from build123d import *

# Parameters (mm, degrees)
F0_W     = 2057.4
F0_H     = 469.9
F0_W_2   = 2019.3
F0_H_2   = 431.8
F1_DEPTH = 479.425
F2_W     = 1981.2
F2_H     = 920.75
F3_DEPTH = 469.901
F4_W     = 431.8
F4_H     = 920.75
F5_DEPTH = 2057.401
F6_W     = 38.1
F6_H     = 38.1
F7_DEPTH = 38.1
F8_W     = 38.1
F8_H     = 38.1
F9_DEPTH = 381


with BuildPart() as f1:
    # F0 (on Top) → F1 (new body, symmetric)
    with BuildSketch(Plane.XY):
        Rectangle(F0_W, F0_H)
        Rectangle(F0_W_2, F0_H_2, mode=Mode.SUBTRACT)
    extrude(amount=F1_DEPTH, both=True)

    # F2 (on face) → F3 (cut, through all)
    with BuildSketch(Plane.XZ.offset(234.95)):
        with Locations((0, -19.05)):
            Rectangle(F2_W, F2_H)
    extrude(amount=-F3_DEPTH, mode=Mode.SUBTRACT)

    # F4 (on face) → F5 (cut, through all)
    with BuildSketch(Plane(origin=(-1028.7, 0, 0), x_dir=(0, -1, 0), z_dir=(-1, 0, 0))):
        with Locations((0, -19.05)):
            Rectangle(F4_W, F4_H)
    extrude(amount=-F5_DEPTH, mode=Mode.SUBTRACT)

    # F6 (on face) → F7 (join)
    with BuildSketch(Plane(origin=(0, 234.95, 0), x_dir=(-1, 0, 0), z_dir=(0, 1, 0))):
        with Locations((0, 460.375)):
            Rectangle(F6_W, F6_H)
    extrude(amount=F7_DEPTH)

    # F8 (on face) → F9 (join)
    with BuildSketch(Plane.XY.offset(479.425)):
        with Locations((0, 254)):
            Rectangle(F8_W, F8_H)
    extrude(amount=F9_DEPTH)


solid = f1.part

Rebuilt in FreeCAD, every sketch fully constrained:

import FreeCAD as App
import Part
import Sketcher
from FreeCAD import Vector
Q = App.Units.Quantity


def add_polygon(sketch, points):
    """Adds a closed chain of lines whose ends are joined by coincident constraints."""
    first, n = sketch.GeometryCount, len(points)
    for a, b in zip(points, points[1:] + points[:1]):
        sketch.addGeometry(Part.LineSegment(App.Vector(*a, 0), App.Vector(*b, 0)), False)
    for i in range(n):
        sketch.addConstraint(Sketcher.Constraint("Coincident", first + i, 2, first + (i + 1) % n, 1))

doc = App.newDocument("Part")
body = doc.addObject("PartDesign::Body", "Body")

# Sketch on XY plane
sketch1 = doc.addObject("Sketcher::SketchObject", "Sketch")
body.addObject(sketch1)
sketch1.AttachmentSupport = (doc.XY_Plane, [""])
sketch1.MapMode = "FlatFace"
add_polygon(sketch1, [(-1028.7, 234.95), (-1028.7, -234.95), (1028.7, -234.95), (1028.7, 234.95)])  # lines 0-3
add_polygon(sketch1, [(1009.65, -215.9), (-1009.65, -215.9), (-1009.65, 215.9), (1009.65, 215.9)])  # lines 4-7
sketch1.addConstraint(Sketcher.Constraint("Vertical", 0))
sketch1.addConstraint(Sketcher.Constraint("Horizontal", 1))
sketch1.addConstraint(Sketcher.Constraint("Vertical", 2))
sketch1.addConstraint(Sketcher.Constraint("Horizontal", 3))
sketch1.addConstraint(Sketcher.Constraint("Horizontal", 4))
sketch1.addConstraint(Sketcher.Constraint("Vertical", 5))
sketch1.addConstraint(Sketcher.Constraint("Horizontal", 6))
sketch1.addConstraint(Sketcher.Constraint("Vertical", 7))
sketch1.addConstraint(Sketcher.Constraint("Symmetric", 0, 2, 2, 2, -1, 1))
sketch1.addConstraint(Sketcher.Constraint("Symmetric", 4, 2, 6, 2, -1, 1))
sketch1.addConstraint(Sketcher.Constraint("DistanceX", 1, 1, 1, 2, Q("81 in")))
sketch1.addConstraint(Sketcher.Constraint("DistanceY", 5, 1, 5, 2, Q("17 in")))
sketch1.addConstraint(Sketcher.Constraint("DistanceX", 4, 2, 4, 1, Q("79.5 in")))
sketch1.addConstraint(Sketcher.Constraint("DistanceY", 0, 2, 0, 1, Q("18.5 in")))
pad1 = doc.addObject("PartDesign::Pad", "Pad")
body.addObject(pad1)
pad1.Profile = sketch1
pad1.Length = Q("37.75 in")
pad1.Midplane = True

# Sketch on XZ plane
sketch2 = doc.addObject("Sketcher::SketchObject", "Sketch001")
body.addObject(sketch2)
sketch2.AttachmentSupport = (doc.XZ_Plane, [""])
sketch2.MapMode = "FlatFace"
sketch2.AttachmentOffset = App.Placement(Vector(0, 0, 9.25 * 25.4), App.Rotation())
add_polygon(sketch2, [(-990.6, 441.325), (-990.6, -479.425), (990.6, -479.425), (990.6, 441.325)])  # lines 0-3
sketch2.addConstraint(Sketcher.Constraint("Vertical", 0))
sketch2.addConstraint(Sketcher.Constraint("Horizontal", 1))
sketch2.addConstraint(Sketcher.Constraint("Vertical", 2))
sketch2.addConstraint(Sketcher.Constraint("Horizontal", 3))
sketch2.addConstraint(Sketcher.Constraint("DistanceX", 1, 1, 1, 2, Q("78 in")))
sketch2.addConstraint(Sketcher.Constraint("DistanceX", 0, 2, -1, 1, Q("39 in")))
sketch2.addConstraint(Sketcher.Constraint("DistanceY", 0, 2, 0, 1, Q("36.25 in")))
sketch2.addConstraint(Sketcher.Constraint("DistanceY", 0, 2, -1, 1, Q("18.875 in")))
pocket1 = doc.addObject("PartDesign::Pocket", "Pocket")
body.addObject(pocket1)
pocket1.Profile = sketch2
pocket1.Type = "ThroughAll"

# Sketch on YZ plane
sketch3 = doc.addObject("Sketcher::SketchObject", "Sketch002")
body.addObject(sketch3)
sketch3.AttachmentSupport = (doc.YZ_Plane, [""])
sketch3.MapMode = "FlatFace"
sketch3.AttachmentOffset = App.Placement(Vector(0, 0, -40.5 * 25.4), App.Rotation())
add_polygon(sketch3, [(215.9, 441.325), (215.9, -479.425), (-215.9, -479.425), (-215.9, 441.325)])  # lines 0-3
sketch3.addConstraint(Sketcher.Constraint("Vertical", 0))
sketch3.addConstraint(Sketcher.Constraint("Horizontal", 1))
sketch3.addConstraint(Sketcher.Constraint("Vertical", 2))
sketch3.addConstraint(Sketcher.Constraint("Horizontal", 3))
sketch3.addConstraint(Sketcher.Constraint("DistanceX", 1, 2, 1, 1, Q("17 in")))
sketch3.addConstraint(Sketcher.Constraint("DistanceY", 0, 2, 0, 1, Q("36.25 in")))
sketch3.addConstraint(Sketcher.Constraint("DistanceX", -1, 1, 0, 2, Q("8.5 in")))
sketch3.addConstraint(Sketcher.Constraint("DistanceY", 0, 2, -1, 1, Q("18.875 in")))
pocket2 = doc.addObject("PartDesign::Pocket", "Pocket001")
body.addObject(pocket2)
pocket2.Profile = sketch3
pocket2.Type = "ThroughAll"
pocket2.Reversed = True

# Sketch on XZ plane
sketch4 = doc.addObject("Sketcher::SketchObject", "Sketch003")
body.addObject(sketch4)
sketch4.AttachmentSupport = (doc.XZ_Plane, [""])
sketch4.MapMode = "FlatFace"
sketch4.AttachmentOffset = App.Placement(Vector(0, 0, -9.25 * 25.4), App.Rotation())
add_polygon(sketch4, [(19.05, 479.425), (19.05, 441.325), (-19.05, 441.325), (-19.05, 479.425)])  # lines 0-3
sketch4.addConstraint(Sketcher.Constraint("Vertical", 0))
sketch4.addConstraint(Sketcher.Constraint("Horizontal", 1))
sketch4.addConstraint(Sketcher.Constraint("Vertical", 2))
sketch4.addConstraint(Sketcher.Constraint("Horizontal", 3))
sketch4.addConstraint(Sketcher.Constraint("Equal", 3, 0))
sketch4.addConstraint(Sketcher.Constraint("DistanceX", 1, 2, 1, 1, Q("1.5 in")))
sketch4.addConstraint(Sketcher.Constraint("DistanceX", -1, 1, 0, 2, Q("0.75 in")))
sketch4.addConstraint(Sketcher.Constraint("DistanceY", -1, 1, 0, 2, Q("17.375 in")))
pad2 = doc.addObject("PartDesign::Pad", "Pad001")
body.addObject(pad2)
pad2.Profile = sketch4
pad2.Length = Q("1.5 in")
pad2.Reversed = True

# Sketch on XY plane
sketch5 = doc.addObject("Sketcher::SketchObject", "Sketch004")
body.addObject(sketch5)
sketch5.AttachmentSupport = (doc.XY_Plane, [""])
sketch5.MapMode = "FlatFace"
sketch5.AttachmentOffset = App.Placement(Vector(0, 0, 18.875 * 25.4), App.Rotation())
add_polygon(sketch5, [(-19.05, 273.05), (-19.05, 234.95), (19.05, 234.95), (19.05, 273.05)])  # lines 0-3
sketch5.addConstraint(Sketcher.Constraint("Vertical", 0))
sketch5.addConstraint(Sketcher.Constraint("Horizontal", 1))
sketch5.addConstraint(Sketcher.Constraint("Vertical", 2))
sketch5.addConstraint(Sketcher.Constraint("Horizontal", 3))
sketch5.addConstraint(Sketcher.Constraint("Equal", 3, 0))
sketch5.addConstraint(Sketcher.Constraint("DistanceX", 1, 1, 1, 2, Q("1.5 in")))
sketch5.addConstraint(Sketcher.Constraint("DistanceX", 0, 2, -1, 1, Q("0.75 in")))
sketch5.addConstraint(Sketcher.Constraint("DistanceY", -1, 1, 0, 2, Q("9.25 in")))
pad3 = doc.addObject("PartDesign::Pad", "Pad002")
body.addObject(pad3)
pad3.Profile = sketch5
pad3.Length = Q("15 in")

doc.recompute()
